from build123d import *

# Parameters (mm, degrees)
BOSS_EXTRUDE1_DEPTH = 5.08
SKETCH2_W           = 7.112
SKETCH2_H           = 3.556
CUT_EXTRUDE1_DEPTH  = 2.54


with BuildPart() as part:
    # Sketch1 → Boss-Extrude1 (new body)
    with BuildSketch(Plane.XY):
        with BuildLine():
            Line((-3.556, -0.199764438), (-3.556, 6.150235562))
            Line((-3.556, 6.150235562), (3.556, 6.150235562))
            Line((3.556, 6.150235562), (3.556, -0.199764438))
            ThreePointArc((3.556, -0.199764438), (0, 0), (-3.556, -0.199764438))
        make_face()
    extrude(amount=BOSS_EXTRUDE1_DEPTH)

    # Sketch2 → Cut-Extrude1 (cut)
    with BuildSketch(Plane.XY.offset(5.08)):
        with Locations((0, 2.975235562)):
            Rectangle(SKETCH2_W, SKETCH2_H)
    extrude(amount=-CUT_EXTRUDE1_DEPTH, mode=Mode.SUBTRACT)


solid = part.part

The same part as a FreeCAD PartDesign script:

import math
import FreeCAD as App
import Part
import Sketcher
Q = App.Units.Quantity

doc = App.newDocument("Part")
body = doc.addObject("PartDesign::Body", "Body")

sketch1 = body.newObject("Sketcher::SketchObject", "Sketch")
sketch1.AttachmentSupport = (doc.getObject("XY_Plane"), [""])
sketch1.MapMode = "FlatFace"
sketch1.addGeometry([
    Part.LineSegment(App.Vector(-4, 6, 0), App.Vector(-4, 0, 0)),
    Part.ArcOfCircle(Part.Circle(App.Vector(0, -32, 0), App.Vector(0, 0, 1), 32), math.radians(83.57), math.radians(96.43)),
    Part.LineSegment(App.Vector(4, 0, 0), App.Vector(4, 6, 0)),
    Part.LineSegment(App.Vector(4, 6, 0), App.Vector(-4, 6, 0)),
], False)
sketch1.addConstraint([
    Sketcher.Constraint("Coincident", 0, 2, 1, 2),
    Sketcher.Constraint("Coincident", 1, 1, 2, 1),
    Sketcher.Constraint("Coincident", 2, 2, 3, 1),
    Sketcher.Constraint("Coincident", 3, 2, 0, 1),
    Sketcher.Constraint("Vertical", 0),
    Sketcher.Constraint("Vertical", 2),
    Sketcher.Constraint("Horizontal", 3),
    Sketcher.Constraint("Symmetric", 0, 2, 1, 1, -2),
    Sketcher.Constraint("Radius", 1, Q("1.25 in")),
    Sketcher.Constraint("DistanceX", 3, 2, 3, 1, Q("0.28 in")),
    Sketcher.Constraint("DistanceY", 0, 2, 0, 1, Q("0.25 in")),
    Sketcher.Constraint("DistanceY", 1, 3, -1, 1, Q("1.25 in")),
])
pad1 = body.newObject("PartDesign::Pad", "Pad")
pad1.Profile = sketch1
pad1.Length = Q("0.2 in")

sketch2 = body.newObject("Sketcher::SketchObject", "Sketch001")
sketch2.AttachmentSupport = (doc.getObject("XY_Plane"), [""])
sketch2.MapMode = "FlatFace"
sketch2.AttachmentOffset = App.Placement(App.Vector(0, 0, 0.2 * 25.4), App.Rotation())
sketch2.addGeometry([
    Part.LineSegment(App.Vector(-3.6, 4.8, 0), App.Vector(-3.6, 1.2, 0)),
    Part.LineSegment(App.Vector(-3.6, 1.2, 0), App.Vector(3.6, 1.2, 0)),
    Part.LineSegment(App.Vector(3.6, 1.2, 0), App.Vector(3.6, 4.8, 0)),
    Part.LineSegment(App.Vector(3.6, 4.8, 0), App.Vector(-3.6, 4.8, 0)),
], False)
sketch2.addConstraint([
    Sketcher.Constraint("Coincident", 0, 2, 1, 1),
    Sketcher.Constraint("Coincident", 1, 2, 2, 1),
    Sketcher.Constraint("Coincident", 2, 2, 3, 1),
    Sketcher.Constraint("Coincident", 3, 2, 0, 1),
    Sketcher.Constraint("Vertical", 0),
    Sketcher.Constraint("Horizontal", 1),
    Sketcher.Constraint("Vertical", 2),
    Sketcher.Constraint("Horizontal", 3),
    Sketcher.Constraint("DistanceX", 1, 1, 1, 2, Q("0.28 in")),
    Sketcher.Constraint("DistanceY", 0, 2, 0, 1, Q("0.14 in")),
    Sketcher.Constraint("DistanceX", 0, 2, -1, 1, Q("0.14 in")),
    Sketcher.Constraint("DistanceY", -1, 1, 0, 2, Q("1.197236 mm")),
])
pocket1 = body.newObject("PartDesign::Pocket", "Pocket")
pocket1.Profile = sketch2
pocket1.Length = Q("0.1 in")

doc.recompute()
